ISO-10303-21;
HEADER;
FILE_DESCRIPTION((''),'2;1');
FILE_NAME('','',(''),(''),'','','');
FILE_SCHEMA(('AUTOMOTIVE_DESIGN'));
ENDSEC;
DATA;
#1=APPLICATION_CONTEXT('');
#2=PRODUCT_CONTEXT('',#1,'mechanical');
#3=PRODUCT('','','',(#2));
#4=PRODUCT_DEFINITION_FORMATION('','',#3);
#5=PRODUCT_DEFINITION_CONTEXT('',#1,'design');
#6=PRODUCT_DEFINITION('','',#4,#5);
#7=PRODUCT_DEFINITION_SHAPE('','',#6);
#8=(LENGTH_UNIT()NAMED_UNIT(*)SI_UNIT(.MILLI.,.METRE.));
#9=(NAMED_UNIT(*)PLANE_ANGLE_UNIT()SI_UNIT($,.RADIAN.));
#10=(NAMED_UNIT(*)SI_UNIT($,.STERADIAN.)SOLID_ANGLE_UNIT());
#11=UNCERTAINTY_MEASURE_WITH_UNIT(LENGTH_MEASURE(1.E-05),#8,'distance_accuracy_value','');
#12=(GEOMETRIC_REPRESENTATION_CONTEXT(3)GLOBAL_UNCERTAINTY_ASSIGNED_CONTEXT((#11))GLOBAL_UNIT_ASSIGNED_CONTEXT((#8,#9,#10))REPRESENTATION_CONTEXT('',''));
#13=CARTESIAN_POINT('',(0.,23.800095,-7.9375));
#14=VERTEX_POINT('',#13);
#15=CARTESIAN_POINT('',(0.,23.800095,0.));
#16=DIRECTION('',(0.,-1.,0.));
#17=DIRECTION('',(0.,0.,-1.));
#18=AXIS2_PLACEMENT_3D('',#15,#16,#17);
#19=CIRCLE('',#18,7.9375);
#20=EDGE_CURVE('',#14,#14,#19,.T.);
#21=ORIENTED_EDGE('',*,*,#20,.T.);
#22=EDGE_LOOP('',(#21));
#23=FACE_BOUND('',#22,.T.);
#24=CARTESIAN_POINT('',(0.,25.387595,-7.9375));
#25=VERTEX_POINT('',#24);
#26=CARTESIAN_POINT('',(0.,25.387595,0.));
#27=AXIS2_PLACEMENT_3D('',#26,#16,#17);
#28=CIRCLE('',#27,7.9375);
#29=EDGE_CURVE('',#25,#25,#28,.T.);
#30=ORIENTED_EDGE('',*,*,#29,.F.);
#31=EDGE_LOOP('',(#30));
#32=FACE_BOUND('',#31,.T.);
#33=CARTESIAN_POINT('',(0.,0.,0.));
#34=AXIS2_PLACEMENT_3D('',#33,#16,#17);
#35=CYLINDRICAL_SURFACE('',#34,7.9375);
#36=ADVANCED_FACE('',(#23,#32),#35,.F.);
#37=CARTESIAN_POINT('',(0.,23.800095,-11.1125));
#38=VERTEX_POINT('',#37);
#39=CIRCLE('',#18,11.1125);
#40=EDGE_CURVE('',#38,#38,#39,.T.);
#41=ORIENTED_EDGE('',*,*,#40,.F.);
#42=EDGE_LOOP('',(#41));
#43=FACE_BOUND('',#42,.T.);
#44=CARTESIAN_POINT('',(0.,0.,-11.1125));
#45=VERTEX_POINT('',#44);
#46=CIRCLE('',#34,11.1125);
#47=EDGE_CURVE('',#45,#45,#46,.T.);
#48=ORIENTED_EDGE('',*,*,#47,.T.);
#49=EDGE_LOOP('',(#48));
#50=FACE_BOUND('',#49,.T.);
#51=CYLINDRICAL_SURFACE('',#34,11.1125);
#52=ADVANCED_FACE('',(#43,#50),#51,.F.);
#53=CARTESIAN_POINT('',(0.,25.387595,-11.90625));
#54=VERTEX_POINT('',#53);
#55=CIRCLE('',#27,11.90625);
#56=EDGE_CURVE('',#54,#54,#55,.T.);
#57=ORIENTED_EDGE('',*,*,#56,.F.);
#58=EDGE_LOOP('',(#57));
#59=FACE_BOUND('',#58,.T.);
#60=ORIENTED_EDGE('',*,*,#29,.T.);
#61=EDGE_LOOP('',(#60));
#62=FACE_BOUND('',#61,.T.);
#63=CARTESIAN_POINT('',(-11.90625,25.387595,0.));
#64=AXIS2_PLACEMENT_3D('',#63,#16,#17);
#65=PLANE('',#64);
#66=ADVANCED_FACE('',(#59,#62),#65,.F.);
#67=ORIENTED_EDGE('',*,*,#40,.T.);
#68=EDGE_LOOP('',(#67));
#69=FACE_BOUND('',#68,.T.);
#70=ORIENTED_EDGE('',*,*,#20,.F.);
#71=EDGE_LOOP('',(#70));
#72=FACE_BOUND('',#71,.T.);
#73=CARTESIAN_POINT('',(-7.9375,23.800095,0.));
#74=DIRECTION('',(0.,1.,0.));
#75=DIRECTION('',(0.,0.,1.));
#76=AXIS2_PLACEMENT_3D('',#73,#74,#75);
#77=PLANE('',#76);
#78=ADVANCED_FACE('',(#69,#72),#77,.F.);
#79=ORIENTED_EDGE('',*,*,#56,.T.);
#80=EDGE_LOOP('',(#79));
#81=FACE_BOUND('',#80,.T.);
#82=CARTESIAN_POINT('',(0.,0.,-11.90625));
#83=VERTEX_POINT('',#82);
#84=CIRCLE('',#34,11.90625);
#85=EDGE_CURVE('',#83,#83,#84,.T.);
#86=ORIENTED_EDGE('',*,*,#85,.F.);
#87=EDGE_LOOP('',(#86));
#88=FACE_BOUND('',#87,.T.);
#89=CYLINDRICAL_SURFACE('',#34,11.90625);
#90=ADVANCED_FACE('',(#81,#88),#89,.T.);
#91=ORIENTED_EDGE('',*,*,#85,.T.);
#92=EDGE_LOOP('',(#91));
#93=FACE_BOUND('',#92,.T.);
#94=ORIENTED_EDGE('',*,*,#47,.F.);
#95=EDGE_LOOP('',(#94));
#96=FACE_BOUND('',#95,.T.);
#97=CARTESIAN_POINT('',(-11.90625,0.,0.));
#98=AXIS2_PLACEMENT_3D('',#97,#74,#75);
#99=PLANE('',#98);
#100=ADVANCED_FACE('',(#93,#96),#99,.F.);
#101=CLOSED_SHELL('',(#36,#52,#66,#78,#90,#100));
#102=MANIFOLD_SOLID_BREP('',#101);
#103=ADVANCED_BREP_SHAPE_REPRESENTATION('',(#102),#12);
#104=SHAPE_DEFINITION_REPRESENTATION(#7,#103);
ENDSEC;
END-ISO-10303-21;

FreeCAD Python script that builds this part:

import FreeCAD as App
import Part
import Sketcher
from FreeCAD import Vector
Q = App.Units.Quantity


def add_polygon(sketch, points):
    """Adds a closed chain of lines whose ends are joined by coincident constraints."""
    first, n = sketch.GeometryCount, len(points)
    for a, b in zip(points, points[1:] + points[:1]):
        sketch.addGeometry(Part.LineSegment(App.Vector(*a, 0), App.Vector(*b, 0)), False)
    for i in range(n):
        sketch.addConstraint(Sketcher.Constraint("Coincident", first + i, 2, first + (i + 1) % n, 1))

doc = App.newDocument("Part")
params = doc.addObject("Spreadsheet::Sheet", "Params")
for row, (alias, value) in enumerate([
    ("sketch1_width", "0.03125 in"),
    ("sketch1_width2", "0.125 in"),
    ("sketch1_height", "0.0625 in"),
    ("revolution_angle", "360 deg"),
], start=1):
    params.set(f"A{row}", alias)
    params.set(f"B{row}", "=" + value)
    params.setAlias(f"B{row}", alias)

body = doc.addObject("PartDesign::Body", "Body")

# Sketch on XY plane
sketch1 = body.newObject("Sketcher::SketchObject", "Sketch")
sketch1.AttachmentSupport = (doc.getObject("XY_Plane"), [""])
sketch1.MapMode = "FlatFace"
add_polygon(sketch1, [(-11.9, 25.4), (-11.9, 0), (-11.1, 0), (-11.1, 23.8), (-7.9, 23.8), (-7.9, 25.4)])  # lines 0-5
sketch1.addConstraint(Sketcher.Constraint("Vertical", 0))
sketch1.addConstraint(Sketcher.Constraint("Horizontal", 1))
sketch1.addConstraint(Sketcher.Constraint("Vertical", 2))
sketch1.addConstraint(Sketcher.Constraint("Horizontal", 3))
sketch1.addConstraint(Sketcher.Constraint("Vertical", 4))
sketch1.addConstraint(Sketcher.Constraint("Horizontal", 5))
sketch1.addConstraint(Sketcher.Constraint("PointOnObject", 0, 2, -1))
sketch1.addConstraint(Sketcher.Constraint("DistanceX", 1, 1, 1, 2, Q("0.03125 in")))
sketch1.addConstraint(Sketcher.Constraint("DistanceX", 3, 1, 3, 2, Q("0.125 in")))
sketch1.addConstraint(Sketcher.Constraint("DistanceY", 4, 1, 4, 2, Q("0.0625 in")))
sketch1.addConstraint(Sketcher.Constraint("DistanceX", 0, 2, -1, 1, Q("0.46875 in")))
sketch1.addConstraint(Sketcher.Constraint("DistanceY", 0, 2, 0, 1, 25.387595))
sketch1.setExpression("Constraints[13]", "Params.sketch1_width")
sketch1.setExpression("Constraints[14]", "Params.sketch1_width2")
sketch1.setExpression("Constraints[15]", "Params.sketch1_height")
revolution = body.newObject("PartDesign::Revolution", "Revolution")
revolution.Profile = sketch1
revolution.ReferenceAxis = (sketch1, ["V_Axis"])
revolution.setExpression("Angle", "Params.revolution_angle")

doc.recompute()
